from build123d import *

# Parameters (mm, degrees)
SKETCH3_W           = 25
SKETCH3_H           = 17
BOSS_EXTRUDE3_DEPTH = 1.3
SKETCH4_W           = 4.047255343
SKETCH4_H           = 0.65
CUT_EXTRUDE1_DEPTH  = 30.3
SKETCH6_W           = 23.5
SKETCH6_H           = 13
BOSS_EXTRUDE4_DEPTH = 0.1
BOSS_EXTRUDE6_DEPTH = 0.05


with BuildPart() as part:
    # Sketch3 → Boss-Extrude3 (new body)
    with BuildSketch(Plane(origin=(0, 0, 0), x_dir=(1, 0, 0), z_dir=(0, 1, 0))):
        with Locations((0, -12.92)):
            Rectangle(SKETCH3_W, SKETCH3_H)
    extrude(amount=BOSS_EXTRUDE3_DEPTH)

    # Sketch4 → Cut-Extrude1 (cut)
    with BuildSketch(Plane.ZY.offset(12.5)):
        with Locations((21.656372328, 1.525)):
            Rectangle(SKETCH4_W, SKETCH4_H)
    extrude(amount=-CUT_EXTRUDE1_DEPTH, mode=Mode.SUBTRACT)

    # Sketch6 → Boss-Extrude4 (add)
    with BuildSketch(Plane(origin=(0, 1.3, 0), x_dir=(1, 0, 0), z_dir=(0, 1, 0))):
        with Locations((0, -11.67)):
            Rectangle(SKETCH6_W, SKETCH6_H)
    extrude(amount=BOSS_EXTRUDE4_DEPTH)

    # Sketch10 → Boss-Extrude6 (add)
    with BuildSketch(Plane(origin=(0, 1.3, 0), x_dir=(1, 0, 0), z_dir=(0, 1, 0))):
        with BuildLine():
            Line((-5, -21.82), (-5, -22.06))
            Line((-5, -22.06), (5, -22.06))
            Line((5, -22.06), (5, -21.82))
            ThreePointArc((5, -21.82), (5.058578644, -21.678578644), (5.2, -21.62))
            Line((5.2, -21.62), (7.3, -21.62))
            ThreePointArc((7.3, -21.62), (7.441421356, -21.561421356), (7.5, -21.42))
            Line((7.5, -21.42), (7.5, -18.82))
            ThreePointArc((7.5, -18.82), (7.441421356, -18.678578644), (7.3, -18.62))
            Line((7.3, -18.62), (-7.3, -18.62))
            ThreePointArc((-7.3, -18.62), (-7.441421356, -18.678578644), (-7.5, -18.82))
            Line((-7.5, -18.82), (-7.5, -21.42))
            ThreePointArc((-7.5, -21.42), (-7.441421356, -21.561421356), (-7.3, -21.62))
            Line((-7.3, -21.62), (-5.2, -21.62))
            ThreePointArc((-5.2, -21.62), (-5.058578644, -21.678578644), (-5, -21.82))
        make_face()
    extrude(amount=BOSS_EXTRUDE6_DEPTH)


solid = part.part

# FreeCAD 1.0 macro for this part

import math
import FreeCAD as App
import Part
import Sketcher
Q = App.Units.Quantity


def add_polygon(sketch, points):
    """Adds a closed chain of lines whose ends are joined by coincident constraints."""
    first, n = sketch.GeometryCount, len(points)
    for a, b in zip(points, points[1:] + points[:1]):
        sketch.addGeometry(Part.LineSegment(App.Vector(*a, 0), App.Vector(*b, 0)), False)
    for i in range(n):
        sketch.addConstraint(Sketcher.Constraint("Coincident", first + i, 2, first + (i + 1) % n, 1))

doc = App.newDocument("Part")
params = doc.addObject("Spreadsheet::Sheet", "Params")
for row, (alias, value) in enumerate([
    ("sketch1_width", "25 mm"),
    ("sketch1_height", "17 mm"),
    ("pad1_length", "1.3 mm"),
    ("sketch2_width", "0.65 mm"),
    ("pocket1_length", "30.3 mm"),
    ("sketch3_height", "13 mm"),
    ("sketch3_width", "23.5 mm"),
    ("pad2_length", "0.1 mm"),
    ("sketch4_radius", "0.2 mm"),
    ("sketch4_width", "10 mm"),
    ("sketch4_width2", "2.1 mm"),
    ("sketch4_height", "2.6 mm"),
    ("sketch4_height2", "0.24 mm"),
    ("pad3_length", "0.05 mm"),
], start=1):
    params.set(f"A{row}", alias)
    params.set(f"B{row}", "=" + value)
    params.setAlias(f"B{row}", alias)

body = doc.addObject("PartDesign::Body", "Body")

sketch1 = body.newObject("Sketcher::SketchObject", "Sketch")
sketch1.AttachmentSupport = (doc.getObject("XZ_Plane"), [""])
sketch1.MapMode = "FlatFace"
add_polygon(sketch1, [(-12, 4), (-12, 21), (12, 21), (12, 4)])
sketch1.addConstraint(Sketcher.Constraint("Vertical", 0))
sketch1.addConstraint(Sketcher.Constraint("Horizontal", 1))
sketch1.addConstraint(Sketcher.Constraint("Vertical", 2))
sketch1.addConstraint(Sketcher.Constraint("Horizontal", 3))
sketch1.addConstraint(Sketcher.Constraint("DistanceX", 1, 1, 1, 2, Q("25 mm")))
sketch1.addConstraint(Sketcher.Constraint("DistanceY", 0, 1, 0, 2, Q("17 mm")))
sketch1.addConstraint(Sketcher.Constraint("DistanceX", 0, 2, -1, 1, Q("12.5 mm")))
sketch1.addConstraint(Sketcher.Constraint("DistanceY", -1, 1, 0, 2, Q("21.42 mm")))
sketch1.setExpression("Constraints[8]", "Params.sketch1_width")
sketch1.setExpression("Constraints[9]", "Params.sketch1_height")
pad1 = body.newObject("PartDesign::Pad", "Pad")
pad1.Profile = sketch1
pad1.setExpression("Length", "Params.pad1_length")
pad1.Reversed = True

sketch2 = body.newObject("Sketcher::SketchObject", "Sketch001")
sketch2.AttachmentSupport = (doc.getObject("YZ_Plane"), [""])
sketch2.MapMode = "FlatFace"
sketch2.AttachmentOffset = App.Placement(App.Vector(0, 0, -12.5), App.Rotation())
add_polygon(sketch2, [(1.9, 19.6), (1.2, 19.6), (1.2, 23.7), (1.9, 23.7)])
sketch2.addConstraint(Sketcher.Constraint("Horizontal", 0))
sketch2.addConstraint(Sketcher.Constraint("Vertical", 1))
sketch2.addConstraint(Sketcher.Constraint("Horizontal", 2))
sketch2.addConstraint(Sketcher.Constraint("Vertical", 3))
sketch2.addConstraint(Sketcher.Constraint("DistanceX", 0, 2, 0, 1, Q("0.65 mm")))
sketch2.addConstraint(Sketcher.Constraint("DistanceX", -1, 1, 0, 2, Q("1.2 mm")))
sketch2.addConstraint(Sketcher.Constraint("DistanceY", -1, 1, 1, 2, Q("23.68 mm")))
sketch2.addConstraint(Sketcher.Constraint("DistanceY", 1, 1, 1, 2, Q("4.047255 mm")))
sketch2.setExpression("Constraints[8]", "Params.sketch2_width")
pocket1 = body.newObject("PartDesign::Pocket", "Pocket")
pocket1.Profile = sketch2
pocket1.setExpression("Length", "Params.pocket1_length")
pocket1.Reversed = True

sketch3 = body.newObject("Sketcher::SketchObject", "Sketch002")
sketch3.AttachmentSupport = (doc.getObject("XZ_Plane"), [""])
sketch3.MapMode = "FlatFace"
sketch3.AttachmentOffset = App.Placement(App.Vector(0, 0, -1.3), App.Rotation())
add_polygon(sketch3, [(-12, 5), (-12, 18), (12, 18), (12, 5)])
sketch3.addConstraint(Sketcher.Constraint("Vertical", 0))
sketch3.addConstraint(Sketcher.Constraint("Horizontal", 1))
sketch3.addConstraint(Sketcher.Constraint("Vertical", 2))
sketch3.addConstraint(Sketcher.Constraint("Horizontal", 3))
sketch3.addConstraint(Sketcher.Constraint("DistanceY", 0, 1, 0, 2, Q("13 mm")))
sketch3.addConstraint(Sketcher.Constraint("DistanceX", 1, 1, 1, 2, Q("23.5 mm")))
sketch3.addConstraint(Sketcher.Constraint("DistanceX", 0, 2, -1, 1, Q("11.75 mm")))
sketch3.addConstraint(Sketcher.Constraint("DistanceY", -1, 1, 0, 2, Q("18.17 mm")))
sketch3.setExpression("Constraints[8]", "Params.sketch3_height")
sketch3.setExpression("Constraints[9]", "Params.sketch3_width")
pad2 = body.newObject("PartDesign::Pad", "Pad001")
pad2.Profile = sketch3
pad2.setExpression("Length", "Params.pad2_length")
pad2.Reversed = True

sketch4 = body.newObject("Sketcher::SketchObject", "Sketch003")
sketch4.AttachmentSupport = (doc.getObject("XZ_Plane"), [""])
sketch4.MapMode = "FlatFace"
sketch4.AttachmentOffset = App.Placement(App.Vector(0, 0, -1.3), App.Rotation())
sketch4.addGeometry(Part.LineSegment(App.Vector(-5, 21.82, 0), App.Vector(-5, 22.06, 0)), False)
sketch4.addGeometry(Part.LineSegment(App.Vector(-5, 22.06, 0), App.Vector(5, 22.06, 0)), False)
sketch4.addGeometry(Part.LineSegment(App.Vector(5, 22.06, 0), App.Vector(5, 21.82, 0)), False)
sketch4.addGeometry(Part.ArcOfCircle(Part.Circle(App.Vector(5.2, 21.82, 0), App.Vector(0, 0, 1), 0.2), math.radians(-180), math.radians(-90)), False)
sketch4.addGeometry(Part.LineSegment(App.Vector(5.2, 21.62, 0), App.Vector(7.3, 21.62, 0)), False)
sketch4.addGeometry(Part.ArcOfCircle(Part.Circle(App.Vector(7.3, 21.42, 0), App.Vector(0, 0, 1), 0.2), math.radians(0), math.radians(90)), False)
sketch4.addGeometry(Part.LineSegment(App.Vector(7.5, 21.42, 0), App.Vector(7.5, 18.82, 0)), False)
sketch4.addGeometry(Part.ArcOfCircle(Part.Circle(App.Vector(7.3, 18.82, 0), App.Vector(0, 0, 1), 0.2), math.radians(-90), math.radians(0)), False)
sketch4.addGeometry(Part.LineSegment(App.Vector(7.3, 18.62, 0), App.Vector(-7.3, 18.62, 0)), False)
sketch4.addGeometry(Part.ArcOfCircle(Part.Circle(App.Vector(-7.3, 18.82, 0), App.Vector(0, 0, 1), 0.2), math.radians(-180), math.radians(-90)), False)
sketch4.addGeometry(Part.LineSegment(App.Vector(-7.5, 18.82, 0), App.Vector(-7.5, 21.42, 0)), False)
sketch4.addGeometry(Part.ArcOfCircle(Part.Circle(App.Vector(-7.3, 21.42, 0), App.Vector(0, 0, 1), 0.2), math.radians(90), math.radians(180)), False)
sketch4.addGeometry(Part.LineSegment(App.Vector(-7.3, 21.62, 0), App.Vector(-5.2, 21.62, 0)), False)
sketch4.addGeometry(Part.ArcOfCircle(Part.Circle(App.Vector(-5.2, 21.82, 0), App.Vector(0, 0, 1), 0.2), math.radians(-90), math.radians(0)), False)
sketch4.addConstraint(Sketcher.Constraint("Coincident", 0, 2, 1, 1))
sketch4.addConstraint(Sketcher.Constraint("Coincident", 1, 2, 2, 1))
sketch4.addConstraint(Sketcher.Constraint("Tangent", 2, 2, 3, 1))
sketch4.addConstraint(Sketcher.Constraint("Tangent", 3, 2, 4, 1))
sketch4.addConstraint(Sketcher.Constraint("Tangent", 4, 2, 5, 2))
sketch4.addConstraint(Sketcher.Constraint("Tangent", 5, 1, 6, 1))
sketch4.addConstraint(Sketcher.Constraint("Tangent", 6, 2, 7, 2))
sketch4.addConstraint(Sketcher.Constraint("Tangent", 7, 1, 8, 1))
sketch4.addConstraint(Sketcher.Constraint("Tangent", 8, 2, 9, 2))
sketch4.addConstraint(Sketcher.Constraint("Tangent", 9, 1, 10, 1))
sketch4.addConstraint(Sketcher.Constraint("Tangent", 10, 2, 11, 2))
sketch4.addConstraint(Sketcher.Constraint("Tangent", 11, 1, 12, 1))
sketch4.addConstraint(Sketcher.Constraint("Tangent", 12, 2, 13, 1))
sketch4.addConstraint(Sketcher.Constraint("Tangent", 13, 2, 0, 1))
sketch4.addConstraint(Sketcher.Constraint("Vertical", 0))
sketch4.addConstraint(Sketcher.Constraint("Horizontal", 1))
sketch4.addConstraint(Sketcher.Constraint("Vertical", 2))
sketch4.addConstraint(Sketcher.Constraint("Horizontal", 4))
sketch4.addConstraint(Sketcher.Constraint("Vertical", 6))
sketch4.addConstraint(Sketcher.Constraint("Horizontal", 8))
sketch4.addConstraint(Sketcher.Constraint("Vertical", 10))
sketch4.addConstraint(Sketcher.Constraint("Horizontal", 12))
sketch4.addConstraint(Sketcher.Constraint("Equal", 3, 5))
sketch4.addConstraint(Sketcher.Constraint("Equal", 5, 7))
sketch4.addConstraint(Sketcher.Constraint("Equal", 7, 9))
sketch4.addConstraint(Sketcher.Constraint("Equal", 9, 11))
sketch4.addConstraint(Sketcher.Constraint("Equal", 11, 13))
sketch4.addConstraint(Sketcher.Constraint("Symmetric", 5, 3, 11, 3, -2))
sketch4.addConstraint(Sketcher.Constraint("Equal", 4, 12))
sketch4.addConstraint(Sketcher.Constraint("Radius", 3, Q("0.2 mm")))
sketch4.addConstraint(Sketcher.Constraint("DistanceX", 1, 1, 1, 2, Q("10 mm")))
sketch4.addConstraint(Sketcher.Constraint("DistanceX", 4, 1, 4, 2, Q("2.1 mm")))
sketch4.addConstraint(Sketcher.Constraint("DistanceY", 6, 2, 6, 1, Q("2.6 mm")))
sketch4.addConstraint(Sketcher.Constraint("DistanceY", 0, 1, 0, 2, Q("0.24 mm")))
sketch4.addConstraint(Sketcher.Constraint("DistanceY", -1, 1, 3, 3, Q("21.82 mm")))
sketch4.setExpression("Constraints[29]", "Params.sketch4_radius")
sketch4.setExpression("Constraints[30]", "Params.sketch4_width")
sketch4.setExpression("Constraints[31]", "Params.sketch4_width2")
sketch4.setExpression("Constraints[32]", "Params.sketch4_height")
sketch4.setExpression("Constraints[33]", "Params.sketch4_height2")
pad3 = body.newObject("PartDesign::Pad", "Pad002")
pad3.Profile = sketch4
pad3.setExpression("Length", "Params.pad3_length")
pad3.Reversed = True

doc.recompute()
